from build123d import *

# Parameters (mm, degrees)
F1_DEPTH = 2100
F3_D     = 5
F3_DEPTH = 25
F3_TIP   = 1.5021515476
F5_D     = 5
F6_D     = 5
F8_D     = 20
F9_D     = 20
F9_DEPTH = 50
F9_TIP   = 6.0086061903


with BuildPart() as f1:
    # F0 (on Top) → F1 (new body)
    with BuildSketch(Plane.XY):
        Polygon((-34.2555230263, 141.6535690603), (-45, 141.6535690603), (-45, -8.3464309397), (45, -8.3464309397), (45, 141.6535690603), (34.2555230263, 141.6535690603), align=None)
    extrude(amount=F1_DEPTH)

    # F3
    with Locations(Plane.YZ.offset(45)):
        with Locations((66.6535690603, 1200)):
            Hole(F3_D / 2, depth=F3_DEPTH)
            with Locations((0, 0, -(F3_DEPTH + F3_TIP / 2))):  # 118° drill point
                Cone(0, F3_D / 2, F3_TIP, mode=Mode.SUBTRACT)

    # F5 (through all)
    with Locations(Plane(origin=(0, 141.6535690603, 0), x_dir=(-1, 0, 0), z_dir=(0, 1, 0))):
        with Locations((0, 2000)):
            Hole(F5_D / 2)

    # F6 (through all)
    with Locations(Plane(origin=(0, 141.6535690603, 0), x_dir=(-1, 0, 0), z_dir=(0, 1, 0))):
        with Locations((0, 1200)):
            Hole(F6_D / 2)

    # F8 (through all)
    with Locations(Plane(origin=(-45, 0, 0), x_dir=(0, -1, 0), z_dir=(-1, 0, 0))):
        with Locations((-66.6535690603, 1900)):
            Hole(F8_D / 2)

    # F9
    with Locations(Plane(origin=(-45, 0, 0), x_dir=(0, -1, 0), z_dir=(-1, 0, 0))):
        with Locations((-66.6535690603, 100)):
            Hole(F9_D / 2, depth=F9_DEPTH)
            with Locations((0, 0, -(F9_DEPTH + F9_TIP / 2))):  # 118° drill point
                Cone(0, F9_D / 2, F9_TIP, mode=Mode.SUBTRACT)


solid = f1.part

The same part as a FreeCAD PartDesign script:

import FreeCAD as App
import Part
import Sketcher
Q = App.Units.Quantity

doc = App.newDocument("Part")
body = doc.addObject("PartDesign::Body", "Body")

# Sketch on XY plane
sketch1 = body.newObject("Sketcher::SketchObject", "Sketch")
sketch1.AttachmentSupport = (doc.getObject("XY_Plane"), [""])
sketch1.MapMode = "FlatFace"
sketch1.addGeometry(Part.LineSegment(App.Vector(-45, 142, 0), App.Vector(-45, -8, 0)), False)
sketch1.addGeometry(Part.LineSegment(App.Vector(-45, -8, 0), App.Vector(45, -8, 0)), False)
sketch1.addGeometry(Part.LineSegment(App.Vector(45, -8, 0), App.Vector(45, 142, 0)), False)
sketch1.addGeometry(Part.LineSegment(App.Vector(45, 142, 0), App.Vector(-45, 142, 0)), False)
sketch1.addConstraint(Sketcher.Constraint("Coincident", 0, 2, 1, 1))
sketch1.addConstraint(Sketcher.Constraint("Coincident", 1, 2, 2, 1))
sketch1.addConstraint(Sketcher.Constraint("Coincident", 2, 2, 3, 1))
sketch1.addConstraint(Sketcher.Constraint("Coincident", 3, 2, 0, 1))
sketch1.addConstraint(Sketcher.Constraint("Vertical", 0))
sketch1.addConstraint(Sketcher.Constraint("Horizontal", 1))
sketch1.addConstraint(Sketcher.Constraint("Vertical", 2))
sketch1.addConstraint(Sketcher.Constraint("Horizontal", 3))
sketch1.addConstraint(Sketcher.Constraint("DistanceX", 1, 1, 1, 2, Q("90 mm")))
sketch1.addConstraint(Sketcher.Constraint("DistanceY", 0, 2, 0, 1, Q("150 mm")))
sketch1.addConstraint(Sketcher.Constraint("DistanceX", 0, 2, -1, 1, Q("45 mm")))
sketch1.addConstraint(Sketcher.Constraint("DistanceY", 0, 2, -1, 1, Q("8.346431 mm")))
pad1 = body.newObject("PartDesign::Pad", "Pad")
pad1.Profile = sketch1
pad1.Length = 2100

# Sketch on YZ plane
sketch2 = body.newObject("Sketcher::SketchObject", "Sketch001")
sketch2.AttachmentSupport = (doc.getObject("YZ_Plane"), [""])
sketch2.MapMode = "FlatFace"
sketch2.AttachmentOffset = App.Placement(App.Vector(0, 0, 45), App.Rotation())
sketch2.addGeometry(Part.Circle(App.Vector(66.7, 1200, 0), App.Vector(0, 0, 1), 2.5), False)
sketch2.addConstraint(Sketcher.Constraint("Diameter", 0, Q("5 mm")))
sketch2.addConstraint(Sketcher.Constraint("DistanceY", -1, 1, 0, 3, Q("1200 mm")))
sketch2.addConstraint(Sketcher.Constraint("DistanceX", -1, 1, 0, 3, Q("66.653569 mm")))
doc.recompute()
hole = body.newObject("PartDesign::Hole", "Hole")
hole.Profile = sketch2
hole.ThreadType = "None"
hole.Diameter = 5
hole.DepthType = "Dimension"
hole.Depth = 25
hole.DrillPoint = "Angled"
hole.DrillPointAngle = 118

# Sketch on XZ plane
sketch3 = body.newObject("Sketcher::SketchObject", "Sketch002")
sketch3.AttachmentSupport = (doc.getObject("XZ_Plane"), [""])
sketch3.MapMode = "FlatFace"
sketch3.AttachmentOffset = App.Placement(App.Vector(0, 0, -141.653569), App.Rotation())
sketch3.addGeometry(Part.Circle(App.Vector(0, 2000, 0), App.Vector(0, 0, 1), 2.5), False)
sketch3.addConstraint(Sketcher.Constraint("PointOnObject", 0, 3, -2))
sketch3.addConstraint(Sketcher.Constraint("Diameter", 0, Q("5 mm")))
sketch3.addConstraint(Sketcher.Constraint("DistanceY", -1, 1, 0, 3, Q("2000 mm")))
doc.recompute()
hole2 = body.newObject("PartDesign::Hole", "Hole001")
hole2.Profile = sketch3
hole2.ThreadType = "None"
hole2.Diameter = 5
hole2.DepthType = "ThroughAll"
hole2.Reversed = True

# Sketch on XZ plane
sketch4 = body.newObject("Sketcher::SketchObject", "Sketch003")
sketch4.AttachmentSupport = (doc.getObject("XZ_Plane"), [""])
sketch4.MapMode = "FlatFace"
sketch4.AttachmentOffset = App.Placement(App.Vector(0, 0, -141.653569), App.Rotation())
sketch4.addGeometry(Part.Circle(App.Vector(0, 1200, 0), App.Vector(0, 0, 1), 2.5), False)
sketch4.addConstraint(Sketcher.Constraint("PointOnObject", 0, 3, -2))
sketch4.addConstraint(Sketcher.Constraint("Diameter", 0, Q("5 mm")))
sketch4.addConstraint(Sketcher.Constraint("DistanceY", -1, 1, 0, 3, Q("1200 mm")))
doc.recompute()
hole3 = body.newObject("PartDesign::Hole", "Hole002")
hole3.Profile = sketch4
hole3.ThreadType = "None"
hole3.Diameter = 5
hole3.DepthType = "ThroughAll"
hole3.Reversed = True

# Sketch on YZ plane
sketch5 = body.newObject("Sketcher::SketchObject", "Sketch004")
sketch5.AttachmentSupport = (doc.getObject("YZ_Plane"), [""])
sketch5.MapMode = "FlatFace"
sketch5.AttachmentOffset = App.Placement(App.Vector(0, 0, -45), App.Rotation())
sketch5.addGeometry(Part.Circle(App.Vector(67, 1900, 0), App.Vector(0, 0, 1), 10), False)
sketch5.addConstraint(Sketcher.Constraint("Diameter", 0, Q("20 mm")))
sketch5.addConstraint(Sketcher.Constraint("DistanceY", -1, 1, 0, 3, Q("1900 mm")))
sketch5.addConstraint(Sketcher.Constraint("DistanceX", -1, 1, 0, 3, Q("66.653569 mm")))
doc.recompute()
hole4 = body.newObject("PartDesign::Hole", "Hole003")
hole4.Profile = sketch5
hole4.ThreadType = "None"
hole4.Diameter = 20
hole4.DepthType = "ThroughAll"
hole4.Reversed = True

# Sketch on YZ plane
sketch6 = body.newObject("Sketcher::SketchObject", "Sketch005")
sketch6.AttachmentSupport = (doc.getObject("YZ_Plane"), [""])
sketch6.MapMode = "FlatFace"
sketch6.AttachmentOffset = App.Placement(App.Vector(0, 0, -45), App.Rotation())
sketch6.addGeometry(Part.Circle(App.Vector(67, 100, 0), App.Vector(0, 0, 1), 10), False)
sketch6.addConstraint(Sketcher.Constraint("Diameter", 0, Q("20 mm")))
sketch6.addConstraint(Sketcher.Constraint("DistanceY", -1, 1, 0, 3, Q("100 mm")))
sketch6.addConstraint(Sketcher.Constraint("DistanceX", -1, 1, 0, 3, Q("66.653569 mm")))
doc.recompute()
hole5 = body.newObject("PartDesign::Hole", "Hole004")
hole5.Profile = sketch6
hole5.ThreadType = "None"
hole5.Diameter = 20
hole5.DepthType = "Dimension"
hole5.Depth = 50
hole5.DrillPoint = "Angled"
hole5.DrillPointAngle = 118
hole5.Reversed = True

doc.recompute()
